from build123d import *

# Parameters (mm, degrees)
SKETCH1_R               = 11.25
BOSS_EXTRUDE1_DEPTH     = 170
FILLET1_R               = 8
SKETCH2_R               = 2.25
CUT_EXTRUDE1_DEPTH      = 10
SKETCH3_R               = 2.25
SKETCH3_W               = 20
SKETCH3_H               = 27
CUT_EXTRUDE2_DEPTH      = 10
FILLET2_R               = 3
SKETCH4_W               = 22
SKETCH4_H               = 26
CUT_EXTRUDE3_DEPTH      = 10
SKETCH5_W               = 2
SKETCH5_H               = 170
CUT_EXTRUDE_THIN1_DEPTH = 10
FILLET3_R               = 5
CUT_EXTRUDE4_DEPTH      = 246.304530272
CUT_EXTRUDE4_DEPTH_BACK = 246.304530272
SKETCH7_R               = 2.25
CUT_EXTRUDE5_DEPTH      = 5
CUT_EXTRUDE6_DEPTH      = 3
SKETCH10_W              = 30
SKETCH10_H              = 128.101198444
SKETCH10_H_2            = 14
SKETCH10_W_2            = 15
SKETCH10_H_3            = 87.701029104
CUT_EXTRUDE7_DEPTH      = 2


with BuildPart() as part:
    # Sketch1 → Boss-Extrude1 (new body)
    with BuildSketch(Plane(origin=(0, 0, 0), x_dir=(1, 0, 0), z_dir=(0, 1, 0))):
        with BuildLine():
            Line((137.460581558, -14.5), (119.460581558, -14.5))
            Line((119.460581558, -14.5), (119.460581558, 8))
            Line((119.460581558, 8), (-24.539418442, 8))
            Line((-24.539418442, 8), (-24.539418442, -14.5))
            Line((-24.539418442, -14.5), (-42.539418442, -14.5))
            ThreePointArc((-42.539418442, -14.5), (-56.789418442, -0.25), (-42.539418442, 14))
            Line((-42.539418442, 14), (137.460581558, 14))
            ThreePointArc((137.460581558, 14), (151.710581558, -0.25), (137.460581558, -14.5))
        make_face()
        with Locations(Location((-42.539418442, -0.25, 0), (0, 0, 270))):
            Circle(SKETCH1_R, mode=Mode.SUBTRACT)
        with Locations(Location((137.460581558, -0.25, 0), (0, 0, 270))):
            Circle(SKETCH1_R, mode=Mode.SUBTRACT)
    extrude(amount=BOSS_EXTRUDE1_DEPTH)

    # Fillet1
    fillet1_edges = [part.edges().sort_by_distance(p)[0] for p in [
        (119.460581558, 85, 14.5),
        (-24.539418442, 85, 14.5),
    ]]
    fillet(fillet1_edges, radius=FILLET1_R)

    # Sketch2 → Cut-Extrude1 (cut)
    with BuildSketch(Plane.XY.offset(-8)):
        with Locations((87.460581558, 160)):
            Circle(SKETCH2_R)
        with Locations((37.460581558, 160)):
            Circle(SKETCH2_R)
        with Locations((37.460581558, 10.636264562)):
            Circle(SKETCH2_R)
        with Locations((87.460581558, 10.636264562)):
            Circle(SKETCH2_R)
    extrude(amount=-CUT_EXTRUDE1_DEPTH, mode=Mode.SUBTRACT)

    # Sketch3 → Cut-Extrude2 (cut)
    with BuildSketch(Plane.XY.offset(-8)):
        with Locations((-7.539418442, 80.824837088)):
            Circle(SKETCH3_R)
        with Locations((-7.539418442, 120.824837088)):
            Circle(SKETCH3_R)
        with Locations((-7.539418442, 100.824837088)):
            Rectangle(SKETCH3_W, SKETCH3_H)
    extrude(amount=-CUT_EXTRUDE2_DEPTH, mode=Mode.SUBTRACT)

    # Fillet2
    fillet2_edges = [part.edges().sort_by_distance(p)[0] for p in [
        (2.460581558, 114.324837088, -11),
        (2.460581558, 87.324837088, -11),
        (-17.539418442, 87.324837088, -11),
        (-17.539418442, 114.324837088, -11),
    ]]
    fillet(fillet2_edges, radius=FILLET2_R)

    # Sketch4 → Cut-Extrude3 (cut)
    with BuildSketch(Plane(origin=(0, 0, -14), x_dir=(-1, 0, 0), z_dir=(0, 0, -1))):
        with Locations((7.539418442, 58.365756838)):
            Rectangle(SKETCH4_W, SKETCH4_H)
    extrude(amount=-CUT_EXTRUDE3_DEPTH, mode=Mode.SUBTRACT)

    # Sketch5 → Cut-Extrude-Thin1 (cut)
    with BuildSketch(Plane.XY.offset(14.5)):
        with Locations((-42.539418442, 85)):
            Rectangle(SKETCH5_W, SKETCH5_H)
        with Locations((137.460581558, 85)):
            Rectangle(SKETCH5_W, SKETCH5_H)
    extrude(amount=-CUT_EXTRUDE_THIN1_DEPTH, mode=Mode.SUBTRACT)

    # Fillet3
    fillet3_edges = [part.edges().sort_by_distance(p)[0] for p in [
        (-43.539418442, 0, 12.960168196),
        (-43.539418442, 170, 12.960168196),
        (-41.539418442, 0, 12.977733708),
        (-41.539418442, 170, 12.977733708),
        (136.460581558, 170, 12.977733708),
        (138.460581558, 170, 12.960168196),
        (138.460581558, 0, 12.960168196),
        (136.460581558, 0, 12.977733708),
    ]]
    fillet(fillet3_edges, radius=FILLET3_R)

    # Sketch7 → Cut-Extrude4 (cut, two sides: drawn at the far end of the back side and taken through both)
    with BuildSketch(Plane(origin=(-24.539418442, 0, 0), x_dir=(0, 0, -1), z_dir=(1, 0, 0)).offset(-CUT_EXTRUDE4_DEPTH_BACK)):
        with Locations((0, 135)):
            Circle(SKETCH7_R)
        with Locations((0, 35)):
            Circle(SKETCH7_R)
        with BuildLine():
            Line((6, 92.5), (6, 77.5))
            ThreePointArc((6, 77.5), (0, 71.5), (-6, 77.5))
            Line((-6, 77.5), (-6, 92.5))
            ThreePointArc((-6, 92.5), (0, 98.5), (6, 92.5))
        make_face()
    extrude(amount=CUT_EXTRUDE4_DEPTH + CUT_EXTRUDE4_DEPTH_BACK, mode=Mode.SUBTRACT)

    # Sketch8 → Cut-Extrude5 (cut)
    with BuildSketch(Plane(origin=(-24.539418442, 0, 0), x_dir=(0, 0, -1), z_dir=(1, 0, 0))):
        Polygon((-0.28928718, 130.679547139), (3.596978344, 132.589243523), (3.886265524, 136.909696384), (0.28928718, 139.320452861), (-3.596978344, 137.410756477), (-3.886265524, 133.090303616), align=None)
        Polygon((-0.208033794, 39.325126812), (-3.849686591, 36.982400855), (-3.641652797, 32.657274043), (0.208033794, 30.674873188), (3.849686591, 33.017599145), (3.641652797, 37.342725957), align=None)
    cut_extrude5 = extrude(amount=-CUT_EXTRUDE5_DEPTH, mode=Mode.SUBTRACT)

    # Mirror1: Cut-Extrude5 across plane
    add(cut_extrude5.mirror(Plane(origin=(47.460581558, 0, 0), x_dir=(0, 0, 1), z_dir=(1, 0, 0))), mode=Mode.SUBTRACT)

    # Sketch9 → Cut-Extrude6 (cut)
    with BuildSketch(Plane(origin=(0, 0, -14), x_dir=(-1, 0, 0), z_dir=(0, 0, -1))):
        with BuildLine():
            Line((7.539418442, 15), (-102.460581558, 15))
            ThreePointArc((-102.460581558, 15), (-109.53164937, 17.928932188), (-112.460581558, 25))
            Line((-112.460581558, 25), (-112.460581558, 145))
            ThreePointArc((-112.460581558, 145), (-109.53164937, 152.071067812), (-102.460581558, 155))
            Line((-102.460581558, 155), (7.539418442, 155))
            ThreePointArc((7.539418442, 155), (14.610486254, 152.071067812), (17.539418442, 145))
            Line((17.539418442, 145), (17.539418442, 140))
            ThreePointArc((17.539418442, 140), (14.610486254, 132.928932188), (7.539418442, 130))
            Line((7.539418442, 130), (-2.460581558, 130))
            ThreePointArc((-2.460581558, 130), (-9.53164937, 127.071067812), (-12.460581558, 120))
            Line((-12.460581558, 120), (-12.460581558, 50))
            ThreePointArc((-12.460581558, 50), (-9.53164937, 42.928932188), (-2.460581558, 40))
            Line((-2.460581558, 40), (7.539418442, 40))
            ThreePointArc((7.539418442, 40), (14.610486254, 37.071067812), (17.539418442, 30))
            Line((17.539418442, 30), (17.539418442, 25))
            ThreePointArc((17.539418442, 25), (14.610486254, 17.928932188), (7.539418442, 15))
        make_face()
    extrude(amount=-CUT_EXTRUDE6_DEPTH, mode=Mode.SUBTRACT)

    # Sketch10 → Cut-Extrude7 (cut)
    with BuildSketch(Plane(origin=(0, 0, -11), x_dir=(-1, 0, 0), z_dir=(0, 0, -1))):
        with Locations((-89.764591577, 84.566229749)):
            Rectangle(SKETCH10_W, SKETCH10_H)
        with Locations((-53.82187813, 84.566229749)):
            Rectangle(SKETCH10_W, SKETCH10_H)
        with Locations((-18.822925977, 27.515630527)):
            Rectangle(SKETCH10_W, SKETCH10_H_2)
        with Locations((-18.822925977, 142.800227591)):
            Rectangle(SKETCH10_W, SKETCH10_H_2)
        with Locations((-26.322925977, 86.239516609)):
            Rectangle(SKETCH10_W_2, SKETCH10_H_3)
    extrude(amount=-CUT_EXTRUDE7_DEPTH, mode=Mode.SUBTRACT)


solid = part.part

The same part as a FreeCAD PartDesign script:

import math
import FreeCAD as App
import Part
import Sketcher

V = App.Vector


def edges_at(feature, points):
    """Names of the edges that pass closest to the given points."""
    edges = feature.Shape.Edges
    near = lambda p: min(range(len(edges)), key=lambda i: edges[i].distToShape(Part.Vertex(*p))[0])
    return sorted({f"Edge{near(p) + 1}" for p in points})


def add_polygon(sketch, points):
    """Adds a closed chain of lines whose ends are joined by coincident constraints."""
    first, n = sketch.GeometryCount, len(points)
    for a, b in zip(points, points[1:] + points[:1]):
        sketch.addGeometry(Part.LineSegment(App.Vector(*a, 0), App.Vector(*b, 0)), False)
    for i in range(n):
        sketch.addConstraint(Sketcher.Constraint("Coincident", first + i, 2, first + (i + 1) % n, 1))

doc = App.newDocument("Part")
body = doc.addObject("PartDesign::Body", "Body")

# Sketch on XZ plane
sketch1 = body.newObject("Sketcher::SketchObject", "Sketch")
sketch1.AttachmentSupport = (doc.getObject("XZ_Plane"), [""])
sketch1.MapMode = "FlatFace"
sketch1.addGeometry(Part.LineSegment(V(119, 14, 0), V(137, 14, 0)), False)
sketch1.addGeometry(Part.ArcOfCircle(Part.Circle(V(137, 0, 0), V(0, 0, 1), 14), math.radians(-90), math.radians(90)), False)
sketch1.addGeometry(Part.LineSegment(V(137, -14, 0), V(-43, -14, 0)), False)
sketch1.addGeometry(Part.ArcOfCircle(Part.Circle(V(-43, 0, 0), V(0, 0, 1), 14), math.radians(90), math.radians(270)), False)
sketch1.addGeometry(Part.LineSegment(V(-43, 14, 0), V(-25, 14, 0)), False)
sketch1.addGeometry(Part.LineSegment(V(-25, 14, 0), V(-25, -8, 0)), False)
sketch1.addGeometry(Part.LineSegment(V(-25, -8, 0), V(119, -8, 0)), False)
sketch1.addGeometry(Part.LineSegment(V(119, -8, 0), V(119, 14, 0)), False)
sketch1.addGeometry(Part.Circle(V(137, 0, 0), V(0, 0, 1), 11), False)
sketch1.addGeometry(Part.Circle(V(-43, 0, 0), V(0, 0, 1), 11), False)
sketch1.addConstraint(Sketcher.Constraint("Tangent", 0, 2, 1, 2))
sketch1.addConstraint(Sketcher.Constraint("Tangent", 1, 1, 2, 1))
sketch1.addConstraint(Sketcher.Constraint("Tangent", 2, 2, 3, 2))
sketch1.addConstraint(Sketcher.Constraint("Tangent", 3, 1, 4, 1))
sketch1.addConstraint(Sketcher.Constraint("Coincident", 4, 2, 5, 1))
sketch1.addConstraint(Sketcher.Constraint("Coincident", 5, 2, 6, 1))
sketch1.addConstraint(Sketcher.Constraint("Coincident", 6, 2, 7, 1))
sketch1.addConstraint(Sketcher.Constraint("Coincident", 7, 2, 0, 1))
sketch1.addConstraint(Sketcher.Constraint("Horizontal", 0))
sketch1.addConstraint(Sketcher.Constraint("Horizontal", 2))
sketch1.addConstraint(Sketcher.Constraint("Horizontal", 4))
sketch1.addConstraint(Sketcher.Constraint("Vertical", 5))
sketch1.addConstraint(Sketcher.Constraint("Horizontal", 6))
sketch1.addConstraint(Sketcher.Constraint("Vertical", 7))
sketch1.addConstraint(Sketcher.Constraint("Coincident", 8, 3, 1, 3))
sketch1.addConstraint(Sketcher.Constraint("Coincident", 9, 3, 3, 3))
sketch1.addConstraint(Sketcher.Constraint("Equal", 1, 3))
sketch1.addConstraint(Sketcher.Constraint("Equal", 8, 9))
sketch1.addConstraint(Sketcher.Constraint("Equal", 0, 4))
sketch1.addConstraint(Sketcher.Constraint("Diameter", 8, 22.5))
sketch1.addConstraint(Sketcher.Constraint("DistanceX", 0, 1, 0, 2, 18.0))
sketch1.addConstraint(Sketcher.Constraint("DistanceX", 2, 2, 2, 1, 180.0))
sketch1.addConstraint(Sketcher.Constraint("Radius", 1, 14.25))
sketch1.addConstraint(Sketcher.Constraint("DistanceY", 5, 2, 5, 1, 22.5))
sketch1.addConstraint(Sketcher.Constraint("DistanceY", 1, 1, -1, 1, 14.0))
sketch1.addConstraint(Sketcher.Constraint("DistanceX", -1, 1, 1, 3, 137.460582))
pad1 = body.newObject("PartDesign::Pad", "Pad")
pad1.Profile = sketch1
pad1.Length = 170
pad1.Reversed = True
doc.recompute()

fillet = body.newObject("PartDesign::Fillet", "Fillet")
fillet.Base = (pad1, edges_at(pad1, [(119.461, 85, 14.5), (-24.539, 85, 14.5)]))
fillet.Radius = 8

# Sketch on XY plane
sketch2 = body.newObject("Sketcher::SketchObject", "Sketch001")
sketch2.AttachmentSupport = (doc.getObject("XY_Plane"), [""])
sketch2.MapMode = "FlatFace"
sketch2.AttachmentOffset = App.Placement(V(0, 0, -8), App.Rotation())
sketch2.addGeometry(Part.Circle(V(87.5, 160, 0), V(0, 0, 1), 2.2), False)
sketch2.addGeometry(Part.Circle(V(37.5, 160, 0), V(0, 0, 1), 2.2), False)
sketch2.addGeometry(Part.Circle(V(37.5, 10.6, 0), V(0, 0, 1), 2.2), False)
sketch2.addGeometry(Part.Circle(V(87.5, 10.6, 0), V(0, 0, 1), 2.2), False)
sketch2.addConstraint(Sketcher.Constraint("Equal", 0, 1))
sketch2.addConstraint(Sketcher.Constraint("Equal", 1, 2))
sketch2.addConstraint(Sketcher.Constraint("Equal", 2, 3))
sketch2.addConstraint(Sketcher.Constraint("Horizontal", 0, 3, 1, 3))
sketch2.addConstraint(Sketcher.Constraint("Horizontal", 2, 3, 3, 3))
sketch2.addConstraint(Sketcher.Constraint("Vertical", 1, 3, 2, 3))
sketch2.addConstraint(Sketcher.Constraint("Vertical", 0, 3, 3, 3))
sketch2.addConstraint(Sketcher.Constraint("Diameter", 0, 4.5))
sketch2.addConstraint(Sketcher.Constraint("DistanceY", -1, 1, 0, 3, 160.0))
sketch2.addConstraint(Sketcher.Constraint("DistanceX", 1, 3, 0, 3, 50.0))
sketch2.addConstraint(Sketcher.Constraint("DistanceX", -1, 1, 0, 3, 87.460582))
sketch2.addConstraint(Sketcher.Constraint("DistanceY", -1, 1, 2, 3, 10.636265))
pocket1 = body.newObject("PartDesign::Pocket", "Pocket")
pocket1.Profile = sketch2
pocket1.Length = 10

# Sketch on XY plane
sketch3 = body.newObject("Sketcher::SketchObject", "Sketch002")
sketch3.AttachmentSupport = (doc.getObject("XY_Plane"), [""])
sketch3.MapMode = "FlatFace"
sketch3.AttachmentOffset = App.Placement(V(0, 0, -8), App.Rotation())
sketch3.addGeometry(Part.Circle(V(-7.5, 80.8, 0), V(0, 0, 1), 2.2), False)  # 0
sketch3.addGeometry(Part.Circle(V(-7.5, 120.8, 0), V(0, 0, 1), 2.2), False)  # 1
add_polygon(sketch3, [(-17.5, 114.3), (-17.5, 87.3), (2.5, 87.3), (2.5, 114.3)])  # lines 2-5
sketch3.addConstraint(Sketcher.Constraint("Vertical", 2))
sketch3.addConstraint(Sketcher.Constraint("Horizontal", 3))
sketch3.addConstraint(Sketcher.Constraint("Vertical", 4))
sketch3.addConstraint(Sketcher.Constraint("Horizontal", 5))
sketch3.addConstraint(Sketcher.Constraint("Equal", 0, 1))
sketch3.addConstraint(Sketcher.Constraint("Vertical", 0, 3, 1, 3))
sketch3.addConstraint(Sketcher.Constraint("Diameter", 0, 4.5))
sketch3.addConstraint(Sketcher.Constraint("DistanceX", 3, 1, 3, 2, 20.0))
sketch3.addConstraint(Sketcher.Constraint("DistanceY", 2, 2, 2, 1, 27.0))
sketch3.addConstraint(Sketcher.Constraint("DistanceY", 0, 3, 1, 3, 40.0))
sketch3.addConstraint(Sketcher.Constraint("DistanceX", 2, 2, 0, 3, 10.0))
sketch3.addConstraint(Sketcher.Constraint("DistanceY", 0, 3, 2, 2, 6.5))
sketch3.addConstraint(Sketcher.Constraint("DistanceX", 0, 3, -1, 1, 7.539418))
sketch3.addConstraint(Sketcher.Constraint("DistanceY", -1, 1, 0, 3, 80.824837))
pocket2 = body.newObject("PartDesign::Pocket", "Pocket001")
pocket2.Profile = sketch3
pocket2.Length = 10
doc.recompute()

fillet2 = body.newObject("PartDesign::Fillet", "Fillet001")
fillet2.Base = (pocket2, edges_at(pocket2, [
    (2.461, 114.325, -11),
    (2.461, 87.325, -11),
    (-17.539, 87.325, -11),
    (-17.539, 114.325, -11),
]))
fillet2.Radius = 3

# Sketch on XY plane
sketch4 = body.newObject("Sketcher::SketchObject", "Sketch003")
sketch4.AttachmentSupport = (doc.getObject("XY_Plane"), [""])
sketch4.MapMode = "FlatFace"
sketch4.AttachmentOffset = App.Placement(V(0, 0, -14), App.Rotation())
add_polygon(sketch4, [(3, 71), (3, 45), (-19, 45), (-19, 71)])  # lines 0-3
sketch4.addConstraint(Sketcher.Constraint("Vertical", 0))
sketch4.addConstraint(Sketcher.Constraint("Horizontal", 1))
sketch4.addConstraint(Sketcher.Constraint("Vertical", 2))
sketch4.addConstraint(Sketcher.Constraint("Horizontal", 3))
sketch4.addConstraint(Sketcher.Constraint("DistanceX", 1, 2, 1, 1, 22.0))
sketch4.addConstraint(Sketcher.Constraint("DistanceY", 0, 2, 0, 1, 26.0))
sketch4.addConstraint(Sketcher.Constraint("DistanceX", -1, 1, 0, 2, 3.460582))
sketch4.addConstraint(Sketcher.Constraint("DistanceY", -1, 1, 0, 2, 45.365757))
pocket3 = body.newObject("PartDesign::Pocket", "Pocket002")
pocket3.Profile = sketch4
pocket3.Length = 10
pocket3.Reversed = True

# Sketch on XY plane
sketch5 = body.newObject("Sketcher::SketchObject", "Sketch004")
sketch5.AttachmentSupport = (doc.getObject("XY_Plane"), [""])
sketch5.MapMode = "FlatFace"
sketch5.AttachmentOffset = App.Placement(V(0, 0, 14.5), App.Rotation())
add_polygon(sketch5, [(-43.5, 170), (-43.5, 0), (-41.5, 0), (-41.5, 170)])  # lines 0-3
add_polygon(sketch5, [(136.5, 170), (136.5, 0), (138.5, 0), (138.5, 170)])  # lines 4-7
sketch5.addConstraint(Sketcher.Constraint("Vertical", 0))
sketch5.addConstraint(Sketcher.Constraint("Horizontal", 1))
sketch5.addConstraint(Sketcher.Constraint("Vertical", 2))
sketch5.addConstraint(Sketcher.Constraint("Horizontal", 3))
sketch5.addConstraint(Sketcher.Constraint("Vertical", 4))
sketch5.addConstraint(Sketcher.Constraint("Horizontal", 5))
sketch5.addConstraint(Sketcher.Constraint("Vertical", 6))
sketch5.addConstraint(Sketcher.Constraint("Horizontal", 7))
sketch5.addConstraint(Sketcher.Constraint("PointOnObject", 0, 2, -1))
sketch5.addConstraint(Sketcher.Constraint("PointOnObject", 4, 2, -1))
sketch5.addConstraint(Sketcher.Constraint("Horizontal", 3, 2, 6, 2))
sketch5.addConstraint(Sketcher.Constraint("Equal", 3, 5))
sketch5.addConstraint(Sketcher.Constraint("DistanceX", 1, 1, 1, 2, 2.0))
sketch5.addConstraint(Sketcher.Constraint("DistanceY", 0, 2, 0, 1, 170.0))
sketch5.addConstraint(Sketcher.Constraint("DistanceX", 1, 2, 4, 2, 178.0))
sketch5.addConstraint(Sketcher.Constraint("DistanceX", 0, 2, -1, 1, 43.539418))
pocket4 = body.newObject("PartDesign::Pocket", "Pocket003")
pocket4.Profile = sketch5
pocket4.Length = 10
doc.recompute()

fillet3 = body.newObject("PartDesign::Fillet", "Fillet002")
fillet3.Base = (pocket4, edges_at(pocket4, [
    (-43.539, 0, 12.96),
    (-43.539, 170, 12.96),
    (-41.539, 0, 12.978),
    (-41.539, 170, 12.978),
    (136.461, 170, 12.978),
    (138.461, 170, 12.96),
    (138.461, 0, 12.96),
    (136.461, 0, 12.978),
]))
fillet3.Radius = 5

# Sketch on YZ plane
sketch6 = body.newObject("Sketcher::SketchObject", "Sketch005")
sketch6.AttachmentSupport = (doc.getObject("YZ_Plane"), [""])
sketch6.MapMode = "FlatFace"
sketch6.AttachmentOffset = App.Placement(V(0, 0, -24.539418), App.Rotation())
sketch6.addGeometry(Part.Circle(V(135, 0, 0), V(0, 0, 1), 2.2), False)
sketch6.addGeometry(Part.Circle(V(35, 0, 0), V(0, 0, 1), 2.2), False)
sketch6.addGeometry(Part.LineSegment(V(77.5, -6, 0), V(92.5, -6, 0)), False)
sketch6.addGeometry(Part.ArcOfCircle(Part.Circle(V(92.5, 0, 0), V(0, 0, 1), 6), math.radians(-90), math.radians(90)), False)
sketch6.addGeometry(Part.LineSegment(V(92.5, 6, 0), V(77.5, 6, 0)), False)
sketch6.addGeometry(Part.ArcOfCircle(Part.Circle(V(77.5, 0, 0), V(0, 0, 1), 6), math.radians(90), math.radians(270)), False)
sketch6.addConstraint(Sketcher.Constraint("Tangent", 2, 2, 3, 1))
sketch6.addConstraint(Sketcher.Constraint("Tangent", 3, 2, 4, 1))
sketch6.addConstraint(Sketcher.Constraint("Tangent", 4, 2, 5, 1))
sketch6.addConstraint(Sketcher.Constraint("Tangent", 5, 2, 2, 1))
sketch6.addConstraint(Sketcher.Constraint("Horizontal", 2))
sketch6.addConstraint(Sketcher.Constraint("Horizontal", 4))
sketch6.addConstraint(Sketcher.Constraint("Equal", 0, 1))
sketch6.addConstraint(Sketcher.Constraint("PointOnObject", 0, 3, -1))
sketch6.addConstraint(Sketcher.Constraint("PointOnObject", 1, 3, -1))
sketch6.addConstraint(Sketcher.Constraint("PointOnObject", 3, 3, -1))
sketch6.addConstraint(Sketcher.Constraint("Radius", 3, 6.0))
sketch6.addConstraint(Sketcher.Constraint("Diameter", 0, 4.5))
sketch6.addConstraint(Sketcher.Constraint("DistanceX", 2, 1, 2, 2, 15.0))
sketch6.addConstraint(Sketcher.Constraint("DistanceX", -1, 1, 0, 3, 135.0))
sketch6.addConstraint(Sketcher.Constraint("DistanceX", -1, 1, 1, 3, 35.0))
sketch6.addConstraint(Sketcher.Constraint("DistanceX", -1, 1, 3, 3, 92.5))
pocket5 = body.newObject("PartDesign::Pocket", "Pocket004")
pocket5.Profile = sketch6
pocket5.Type = "ThroughAll"
pocket5.Midplane = True

# Sketch on YZ plane
sketch7 = body.newObject("Sketcher::SketchObject", "Sketch006")
sketch7.AttachmentSupport = (doc.getObject("YZ_Plane"), [""])
sketch7.MapMode = "FlatFace"
sketch7.AttachmentOffset = App.Placement(V(0, 0, -24.539418), App.Rotation())
add_polygon(sketch7, [(130.7, 0.3), (132.6, -3.6), (136.9, -3.9), (139.3, -0.3), (137.4, 3.6), (133.1, 3.9)])  # lines 0-5
add_polygon(sketch7, [(39.3, 0.2), (37, 3.8), (32.7, 3.6), (30.7, -0.2), (33, -3.8), (37.3, -3.6)])  # lines 6-11
sketch7.addConstraint(Sketcher.Constraint("Parallel", 0, 3))
sketch7.addConstraint(Sketcher.Constraint("Parallel", 1, 4))
sketch7.addConstraint(Sketcher.Constraint("Parallel", 2, 5))
sketch7.addConstraint(Sketcher.Constraint("Parallel", 6, 9))
sketch7.addConstraint(Sketcher.Constraint("Parallel", 7, 10))
sketch7.addConstraint(Sketcher.Constraint("Parallel", 8, 11))
sketch7.addConstraint(Sketcher.Constraint("Equal", 0, 1))
sketch7.addConstraint(Sketcher.Constraint("Equal", 1, 2))
sketch7.addConstraint(Sketcher.Constraint("Equal", 2, 3))
sketch7.addConstraint(Sketcher.Constraint("Equal", 5, 6))
sketch7.addConstraint(Sketcher.Constraint("Equal", 6, 7))
sketch7.addConstraint(Sketcher.Constraint("Equal", 7, 8))
sketch7.addConstraint(Sketcher.Constraint("Equal", 8, 9))
sketch7.addConstraint(Sketcher.Constraint("DistanceX", -1, 1, 6, 2, 36.982401))
sketch7.addConstraint(Sketcher.Constraint("DistanceX", -1, 1, 9, 2, 33.017599))
sketch7.addConstraint(Sketcher.Constraint("DistanceY", 5, 2, 6, 2, 3.560399))
sketch7.addConstraint(Sketcher.Constraint("DistanceX", 8, 2, 7, 2, 1.982401))
sketch7.addConstraint(Sketcher.Constraint("DistanceY", 8, 2, 4, 2, 4.094299))
sketch7.addConstraint(Sketcher.Constraint("DistanceY", 0, 2, -1, 1, 3.596978))
sketch7.addConstraint(Sketcher.Constraint("DistanceY", -1, 1, 3, 2, 3.596978))
sketch7.addConstraint(Sketcher.Constraint("DistanceY", 1, 2, 2, 2, 3.596978))
sketch7.addConstraint(Sketcher.Constraint("DistanceX", 0, 2, 2, 2, 6.731209))
sketch7.addConstraint(Sketcher.Constraint("DistanceY", 0, 2, 2, 2, 3.307691))
sketch7.addConstraint(Sketcher.Constraint("DistanceX", 7, 2, 0, 2, 99.931969))
pocket6 = body.newObject("PartDesign::Pocket", "Pocket005")
pocket6.Profile = sketch7
pocket6.Length = 5
doc.recompute()

datumplane = body.newObject("PartDesign::Plane", "DatumPlane")
datumplane.AttachmentSupport = (doc.getObject("YZ_Plane"), [""])
datumplane.MapMode = "FlatFace"
datumplane.AttachmentOffset = App.Placement(V(0, 0, 47.460582), App.Rotation())
mirrored = body.newObject("PartDesign::Mirrored", "Mirrored")
mirrored.Originals = [pocket6]
mirrored.MirrorPlane = (datumplane, [""])
body.Tip = mirrored

# Sketch on XY plane
sketch8 = body.newObject("Sketcher::SketchObject", "Sketch007")
sketch8.AttachmentSupport = (doc.getObject("XY_Plane"), [""])
sketch8.MapMode = "FlatFace"
sketch8.AttachmentOffset = App.Placement(V(0, 0, -14), App.Rotation())
sketch8.addGeometry(Part.LineSegment(V(102, 15, 0), V(-8, 15, 0)), False)
sketch8.addGeometry(Part.ArcOfCircle(Part.Circle(V(-8, 25, 0), V(0, 0, 1), 10), math.radians(180), math.radians(270)), False)
sketch8.addGeometry(Part.LineSegment(V(-18, 25, 0), V(-18, 30, 0)), False)
sketch8.addGeometry(Part.ArcOfCircle(Part.Circle(V(-8, 30, 0), V(0, 0, 1), 10), math.radians(90), math.radians(180)), False)
sketch8.addGeometry(Part.LineSegment(V(-8, 40, 0), V(2, 40, 0)), False)
sketch8.addGeometry(Part.ArcOfCircle(Part.Circle(V(2, 50, 0), V(0, 0, 1), 10), math.radians(-90), math.radians(0)), False)
sketch8.addGeometry(Part.LineSegment(V(12, 50, 0), V(12, 120, 0)), False)
sketch8.addGeometry(Part.ArcOfCircle(Part.Circle(V(2, 120, 0), V(0, 0, 1), 10), math.radians(0), math.radians(90)), False)
sketch8.addGeometry(Part.LineSegment(V(2, 130, 0), V(-8, 130, 0)), False)
sketch8.addGeometry(Part.ArcOfCircle(Part.Circle(V(-8, 140, 0), V(0, 0, 1), 10), math.radians(180), math.radians(270)), False)
sketch8.addGeometry(Part.LineSegment(V(-18, 140, 0), V(-18, 145, 0)), False)
sketch8.addGeometry(Part.ArcOfCircle(Part.Circle(V(-8, 145, 0), V(0, 0, 1), 10), math.radians(90), math.radians(180)), False)
sketch8.addGeometry(Part.LineSegment(V(-8, 155, 0), V(102, 155, 0)), False)
sketch8.addGeometry(Part.ArcOfCircle(Part.Circle(V(102, 145, 0), V(0, 0, 1), 10), math.radians(0), math.radians(90)), False)
sketch8.addGeometry(Part.LineSegment(V(112, 145, 0), V(112, 25, 0)), False)
sketch8.addGeometry(Part.ArcOfCircle(Part.Circle(V(102, 25, 0), V(0, 0, 1), 10), math.radians(-90), math.radians(0)), False)
sketch8.addConstraint(Sketcher.Constraint("Tangent", 0, 2, 1, 2))
sketch8.addConstraint(Sketcher.Constraint("Tangent", 1, 1, 2, 1))
sketch8.addConstraint(Sketcher.Constraint("Tangent", 2, 2, 3, 2))
sketch8.addConstraint(Sketcher.Constraint("Tangent", 3, 1, 4, 1))
sketch8.addConstraint(Sketcher.Constraint("Tangent", 4, 2, 5, 1))
sketch8.addConstraint(Sketcher.Constraint("Tangent", 5, 2, 6, 1))
sketch8.addConstraint(Sketcher.Constraint("Tangent", 6, 2, 7, 1))
sketch8.addConstraint(Sketcher.Constraint("Tangent", 7, 2, 8, 1))
sketch8.addConstraint(Sketcher.Constraint("Tangent", 8, 2, 9, 2))
sketch8.addConstraint(Sketcher.Constraint("Tangent", 9, 1, 10, 1))
sketch8.addConstraint(Sketcher.Constraint("Tangent", 10, 2, 11, 2))
sketch8.addConstraint(Sketcher.Constraint("Tangent", 11, 1, 12, 1))
sketch8.addConstraint(Sketcher.Constraint("Tangent", 12, 2, 13, 2))
sketch8.addConstraint(Sketcher.Constraint("Tangent", 13, 1, 14, 1))
sketch8.addConstraint(Sketcher.Constraint("Tangent", 14, 2, 15, 2))
sketch8.addConstraint(Sketcher.Constraint("Tangent", 15, 1, 0, 1))
sketch8.addConstraint(Sketcher.Constraint("Horizontal", 0))
sketch8.addConstraint(Sketcher.Constraint("Vertical", 2))
sketch8.addConstraint(Sketcher.Constraint("Horizontal", 4))
sketch8.addConstraint(Sketcher.Constraint("Vertical", 6))
sketch8.addConstraint(Sketcher.Constraint("Horizontal", 8))
sketch8.addConstraint(Sketcher.Constraint("Vertical", 10))
sketch8.addConstraint(Sketcher.Constraint("Horizontal", 12))
sketch8.addConstraint(Sketcher.Constraint("Vertical", 14))
sketch8.addConstraint(Sketcher.Constraint("Equal", 1, 3))
sketch8.addConstraint(Sketcher.Constraint("Equal", 3, 5))
sketch8.addConstraint(Sketcher.Constraint("Equal", 5, 7))
sketch8.addConstraint(Sketcher.Constraint("Equal", 7, 9))
sketch8.addConstraint(Sketcher.Constraint("Equal", 9, 11))
sketch8.addConstraint(Sketcher.Constraint("Equal", 11, 13))
sketch8.addConstraint(Sketcher.Constraint("Equal", 13, 15))
sketch8.addConstraint(Sketcher.Constraint("Vertical", 3, 3, 9, 3))
sketch8.addConstraint(Sketcher.Constraint("Equal", 2, 10))
sketch8.addConstraint(Sketcher.Constraint("Radius", 1, 10.0))
sketch8.addConstraint(Sketcher.Constraint("DistanceX", 0, 2, 0, 1, 110.0))
sketch8.addConstraint(Sketcher.Constraint("DistanceX", 4, 1, 4, 2, 10.0))
sketch8.addConstraint(Sketcher.Constraint("DistanceY", 2, 1, 2, 2, 5.0))
sketch8.addConstraint(Sketcher.Constraint("DistanceY", 6, 1, 6, 2, 70.0))
sketch8.addConstraint(Sketcher.Constraint("DistanceY", -1, 1, 1, 3, 25.0))
sketch8.addConstraint(Sketcher.Constraint("DistanceX", 1, 3, -1, 1, 7.539418))
pocket7 = body.newObject("PartDesign::Pocket", "Pocket006")
pocket7.Profile = sketch8
pocket7.Length = 3
pocket7.Reversed = True

# Sketch on XY plane
sketch9 = body.newObject("Sketcher::SketchObject", "Sketch008")
sketch9.AttachmentSupport = (doc.getObject("XY_Plane"), [""])
sketch9.MapMode = "FlatFace"
sketch9.AttachmentOffset = App.Placement(V(0, 0, -11), App.Rotation())
add_polygon(sketch9, [(105, 149), (105, 21), (75, 21), (75, 149)])  # lines 0-3
add_polygon(sketch9, [(69, 149), (69, 21), (39, 21), (39, 149)])  # lines 4-7
add_polygon(sketch9, [(34, 35), (34, 21), (4, 21), (4, 35)])  # lines 8-11
add_polygon(sketch9, [(34, 150), (34, 136), (4, 136), (4, 150)])  # lines 12-15
add_polygon(sketch9, [(34, 130), (34, 42), (19, 42), (19, 130)])  # lines 16-19
sketch9.addConstraint(Sketcher.Constraint("Vertical", 0))
sketch9.addConstraint(Sketcher.Constraint("Horizontal", 1))
sketch9.addConstraint(Sketcher.Constraint("Vertical", 2))
sketch9.addConstraint(Sketcher.Constraint("Horizontal", 3))
sketch9.addConstraint(Sketcher.Constraint("Vertical", 4))
sketch9.addConstraint(Sketcher.Constraint("Horizontal", 5))
sketch9.addConstraint(Sketcher.Constraint("Vertical", 6))
sketch9.addConstraint(Sketcher.Constraint("Horizontal", 7))
sketch9.addConstraint(Sketcher.Constraint("Vertical", 8))
sketch9.addConstraint(Sketcher.Constraint("Horizontal", 9))
sketch9.addConstraint(Sketcher.Constraint("Vertical", 10))
sketch9.addConstraint(Sketcher.Constraint("Horizontal", 11))
sketch9.addConstraint(Sketcher.Constraint("Vertical", 12))
sketch9.addConstraint(Sketcher.Constraint("Horizontal", 13))
sketch9.addConstraint(Sketcher.Constraint("Vertical", 14))
sketch9.addConstraint(Sketcher.Constraint("Horizontal", 15))
sketch9.addConstraint(Sketcher.Constraint("Vertical", 16))
sketch9.addConstraint(Sketcher.Constraint("Horizontal", 17))
sketch9.addConstraint(Sketcher.Constraint("Vertical", 18))
sketch9.addConstraint(Sketcher.Constraint("Horizontal", 19))
sketch9.addConstraint(Sketcher.Constraint("Horizontal", 1, 2, 4, 2))
sketch9.addConstraint(Sketcher.Constraint("Horizontal", 3, 2, 6, 2))
sketch9.addConstraint(Sketcher.Constraint("Horizontal", 5, 2, 8, 2))
sketch9.addConstraint(Sketcher.Constraint("Vertical", 11, 2, 12, 2))
sketch9.addConstraint(Sketcher.Constraint("Vertical", 10, 2, 13, 2))
sketch9.addConstraint(Sketcher.Constraint("Vertical", 15, 2, 16, 2))
sketch9.addConstraint(Sketcher.Constraint("Equal", 3, 5))
sketch9.addConstraint(Sketcher.Constraint("Equal", 7, 9))
sketch9.addConstraint(Sketcher.Constraint("Equal", 10, 12))
sketch9.addConstraint(Sketcher.Constraint("DistanceX", 1, 2, 1, 1, 30.0))
sketch9.addConstraint(Sketcher.Constraint("DistanceX", 17, 2, 17, 1, 15.0))
sketch9.addConstraint(Sketcher.Constraint("DistanceY", 8, 2, 8, 1, 14.0))
sketch9.addConstraint(Sketcher.Constraint("DistanceY", 0, 2, 0, 1, 128.101198))
sketch9.addConstraint(Sketcher.Constraint("DistanceY", 16, 2, 16, 1, 87.701029))
sketch9.addConstraint(Sketcher.Constraint("DistanceY", 12, 2, 6, 2, 12.816601))
sketch9.addConstraint(Sketcher.Constraint("DistanceX", -1, 1, 0, 2, 104.764592))
sketch9.addConstraint(Sketcher.Constraint("DistanceY", -1, 1, 0, 2, 20.515631))
sketch9.addConstraint(Sketcher.Constraint("DistanceX", -1, 1, 4, 2, 68.821878))
sketch9.addConstraint(Sketcher.Constraint("DistanceY", -1, 1, 18, 2, 130.090031))
sketch9.addConstraint(Sketcher.Constraint("DistanceX", -1, 1, 8, 2, 33.822926))
pocket8 = body.newObject("PartDesign::Pocket", "Pocket007")
pocket8.Profile = sketch9
pocket8.Length = 2
pocket8.Reversed = True

doc.recompute()
